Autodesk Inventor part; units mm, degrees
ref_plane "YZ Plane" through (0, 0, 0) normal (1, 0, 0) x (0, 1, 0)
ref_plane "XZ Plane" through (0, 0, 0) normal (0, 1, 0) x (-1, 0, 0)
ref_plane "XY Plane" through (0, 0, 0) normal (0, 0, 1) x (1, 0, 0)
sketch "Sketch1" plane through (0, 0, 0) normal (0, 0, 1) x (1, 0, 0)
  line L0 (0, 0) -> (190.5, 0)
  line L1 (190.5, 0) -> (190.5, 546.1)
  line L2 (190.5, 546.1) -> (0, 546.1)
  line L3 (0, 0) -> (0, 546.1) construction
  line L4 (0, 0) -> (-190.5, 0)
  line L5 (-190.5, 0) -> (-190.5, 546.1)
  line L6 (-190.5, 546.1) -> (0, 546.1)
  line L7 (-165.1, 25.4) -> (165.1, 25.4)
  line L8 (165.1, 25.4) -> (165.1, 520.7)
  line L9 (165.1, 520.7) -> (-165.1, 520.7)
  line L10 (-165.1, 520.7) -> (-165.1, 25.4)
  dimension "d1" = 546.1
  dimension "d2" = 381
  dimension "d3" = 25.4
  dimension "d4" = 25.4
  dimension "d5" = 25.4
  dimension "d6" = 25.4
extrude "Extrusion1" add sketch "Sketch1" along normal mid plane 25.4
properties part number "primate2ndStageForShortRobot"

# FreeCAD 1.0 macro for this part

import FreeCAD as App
import Part
import Sketcher
from FreeCAD import Vector
Q = App.Units.Quantity

doc = App.newDocument("Part")
body = doc.addObject("PartDesign::Body", "Body")

# Sketch on XY plane
sketch1 = body.newObject("Sketcher::SketchObject", "Sketch")
sketch1.AttachmentSupport = (doc.getObject("XY_Plane"), [""])
sketch1.MapMode = "FlatFace"
sketch1.addGeometry(Part.LineSegment(Vector(-190, 0, 0), Vector(190, 0, 0)), False)
sketch1.addGeometry(Part.LineSegment(Vector(190, 0, 0), Vector(190, 546, 0)), False)
sketch1.addGeometry(Part.LineSegment(Vector(190, 546, 0), Vector(-190, 546, 0)), False)
sketch1.addGeometry(Part.LineSegment(Vector(-190, 546, 0), Vector(-190, 0, 0)), False)
sketch1.addGeometry(Part.LineSegment(Vector(165, 25, 0), Vector(-165, 25, 0)), False)
sketch1.addGeometry(Part.LineSegment(Vector(-165, 25, 0), Vector(-165, 521, 0)), False)
sketch1.addGeometry(Part.LineSegment(Vector(-165, 521, 0), Vector(165, 521, 0)), False)
sketch1.addGeometry(Part.LineSegment(Vector(165, 521, 0), Vector(165, 25, 0)), False)
sketch1.addConstraint(Sketcher.Constraint("Coincident", 0, 2, 1, 1))
sketch1.addConstraint(Sketcher.Constraint("Coincident", 1, 2, 2, 1))
sketch1.addConstraint(Sketcher.Constraint("Coincident", 2, 2, 3, 1))
sketch1.addConstraint(Sketcher.Constraint("Coincident", 3, 2, 0, 1))
sketch1.addConstraint(Sketcher.Constraint("Coincident", 4, 2, 5, 1))
sketch1.addConstraint(Sketcher.Constraint("Coincident", 5, 2, 6, 1))
sketch1.addConstraint(Sketcher.Constraint("Coincident", 6, 2, 7, 1))
sketch1.addConstraint(Sketcher.Constraint("Coincident", 7, 2, 4, 1))
sketch1.addConstraint(Sketcher.Constraint("Horizontal", 0))
sketch1.addConstraint(Sketcher.Constraint("Vertical", 1))
sketch1.addConstraint(Sketcher.Constraint("Horizontal", 2))
sketch1.addConstraint(Sketcher.Constraint("Vertical", 3))
sketch1.addConstraint(Sketcher.Constraint("Horizontal", 4))
sketch1.addConstraint(Sketcher.Constraint("Vertical", 5))
sketch1.addConstraint(Sketcher.Constraint("Horizontal", 6))
sketch1.addConstraint(Sketcher.Constraint("Vertical", 7))
sketch1.addConstraint(Sketcher.Constraint("Symmetric", 0, 2, 3, 2, -1, 1))
sketch1.addConstraint(Sketcher.Constraint("DistanceX", 0, 1, 0, 2, Q("15 in")))
sketch1.addConstraint(Sketcher.Constraint("DistanceY", 1, 1, 1, 2, Q("21.5 in")))
sketch1.addConstraint(Sketcher.Constraint("DistanceY", -1, 1, 4, 2, Q("1 in")))
sketch1.addConstraint(Sketcher.Constraint("DistanceX", 3, 2, 4, 2, Q("1 in")))
sketch1.addConstraint(Sketcher.Constraint("DistanceY", 5, 2, 2, 2, Q("1 in")))
sketch1.addConstraint(Sketcher.Constraint("DistanceX", 6, 2, 1, 2, Q("1 in")))
pad1 = body.newObject("PartDesign::Pad", "Pad")
pad1.Profile = sketch1
pad1.Length = Q("1 in")
pad1.Midplane = True

doc.recompute()
